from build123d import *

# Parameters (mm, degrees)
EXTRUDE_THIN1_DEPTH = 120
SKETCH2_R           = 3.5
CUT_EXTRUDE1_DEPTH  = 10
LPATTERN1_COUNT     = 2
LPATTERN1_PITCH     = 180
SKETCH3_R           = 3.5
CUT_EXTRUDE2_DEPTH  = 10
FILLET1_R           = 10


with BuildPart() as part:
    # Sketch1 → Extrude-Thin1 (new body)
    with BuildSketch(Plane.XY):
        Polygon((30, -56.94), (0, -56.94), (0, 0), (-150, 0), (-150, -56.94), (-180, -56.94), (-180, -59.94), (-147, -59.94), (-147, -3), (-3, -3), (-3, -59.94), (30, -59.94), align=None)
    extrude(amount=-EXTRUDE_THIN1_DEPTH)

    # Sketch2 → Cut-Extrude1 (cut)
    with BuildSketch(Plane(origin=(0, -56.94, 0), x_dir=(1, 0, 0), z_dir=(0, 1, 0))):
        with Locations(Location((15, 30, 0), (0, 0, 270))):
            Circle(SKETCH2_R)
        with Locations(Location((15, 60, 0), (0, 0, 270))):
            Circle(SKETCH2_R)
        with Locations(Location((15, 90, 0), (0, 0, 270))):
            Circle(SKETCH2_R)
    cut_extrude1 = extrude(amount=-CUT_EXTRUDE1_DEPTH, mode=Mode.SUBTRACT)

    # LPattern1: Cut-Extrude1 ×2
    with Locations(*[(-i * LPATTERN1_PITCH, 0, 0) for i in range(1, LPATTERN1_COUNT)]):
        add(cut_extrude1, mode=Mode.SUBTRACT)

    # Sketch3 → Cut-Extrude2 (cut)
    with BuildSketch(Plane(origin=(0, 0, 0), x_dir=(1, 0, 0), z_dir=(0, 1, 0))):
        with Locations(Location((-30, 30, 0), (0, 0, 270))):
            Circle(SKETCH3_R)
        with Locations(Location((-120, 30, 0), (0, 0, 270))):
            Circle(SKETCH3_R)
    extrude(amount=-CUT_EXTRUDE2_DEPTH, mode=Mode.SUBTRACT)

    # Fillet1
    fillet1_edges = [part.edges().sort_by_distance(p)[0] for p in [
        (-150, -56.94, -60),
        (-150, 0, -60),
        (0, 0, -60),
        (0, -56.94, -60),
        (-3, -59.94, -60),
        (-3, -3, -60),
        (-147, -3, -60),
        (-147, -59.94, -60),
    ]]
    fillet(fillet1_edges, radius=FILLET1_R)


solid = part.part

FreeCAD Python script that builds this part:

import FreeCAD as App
import Part
import Sketcher


def edges_at(feature, points):
    """Names of the edges that pass closest to the given points."""
    edges = feature.Shape.Edges
    near = lambda p: min(range(len(edges)), key=lambda i: edges[i].distToShape(Part.Vertex(*p))[0])
    return sorted({f"Edge{near(p) + 1}" for p in points})

doc = App.newDocument("Part")
body = doc.addObject("PartDesign::Body", "Body")

sketch1 = body.newObject("Sketcher::SketchObject", "Sketch")
sketch1.AttachmentSupport = (doc.getObject("XY_Plane"), [""])
sketch1.MapMode = "FlatFace"
sketch1.addGeometry(Part.LineSegment(App.Vector(30, -56.9, 0), App.Vector(0, -56.9, 0)), False)
sketch1.addGeometry(Part.LineSegment(App.Vector(0, -56.9, 0), App.Vector(0, 0, 0)), False)
sketch1.addGeometry(Part.LineSegment(App.Vector(0, 0, 0), App.Vector(-150, 0, 0)), False)
sketch1.addGeometry(Part.LineSegment(App.Vector(-150, 0, 0), App.Vector(-150, -56.9, 0)), False)
sketch1.addGeometry(Part.LineSegment(App.Vector(-150, -56.9, 0), App.Vector(-180, -56.9, 0)), False)
sketch1.addGeometry(Part.LineSegment(App.Vector(-180, -56.9, 0), App.Vector(-180, -59.9, 0)), False)
sketch1.addGeometry(Part.LineSegment(App.Vector(-180, -59.9, 0), App.Vector(-147, -59.9, 0)), False)
sketch1.addGeometry(Part.LineSegment(App.Vector(-147, -59.9, 0), App.Vector(-147, -3, 0)), False)
sketch1.addGeometry(Part.LineSegment(App.Vector(-147, -3, 0), App.Vector(-3, -3, 0)), False)
sketch1.addGeometry(Part.LineSegment(App.Vector(-3, -3, 0), App.Vector(-3, -59.9, 0)), False)
sketch1.addGeometry(Part.LineSegment(App.Vector(-3, -59.9, 0), App.Vector(30, -59.9, 0)), False)
sketch1.addGeometry(Part.LineSegment(App.Vector(30, -59.9, 0), App.Vector(30, -56.9, 0)), False)
sketch1.addConstraint(Sketcher.Constraint("Coincident", 0, 2, 1, 1))
sketch1.addConstraint(Sketcher.Constraint("Coincident", 1, 2, 2, 1))
sketch1.addConstraint(Sketcher.Constraint("Coincident", 2, 2, 3, 1))
sketch1.addConstraint(Sketcher.Constraint("Coincident", 3, 2, 4, 1))
sketch1.addConstraint(Sketcher.Constraint("Coincident", 4, 2, 5, 1))
sketch1.addConstraint(Sketcher.Constraint("Coincident", 5, 2, 6, 1))
sketch1.addConstraint(Sketcher.Constraint("Coincident", 6, 2, 7, 1))
sketch1.addConstraint(Sketcher.Constraint("Coincident", 7, 2, 8, 1))
sketch1.addConstraint(Sketcher.Constraint("Coincident", 8, 2, 9, 1))
sketch1.addConstraint(Sketcher.Constraint("Coincident", 9, 2, 10, 1))
sketch1.addConstraint(Sketcher.Constraint("Coincident", 10, 2, 11, 1))
sketch1.addConstraint(Sketcher.Constraint("Coincident", 11, 2, 0, 1))
sketch1.addConstraint(Sketcher.Constraint("Horizontal", 0))
sketch1.addConstraint(Sketcher.Constraint("Vertical", 1))
sketch1.addConstraint(Sketcher.Constraint("Horizontal", 2))
sketch1.addConstraint(Sketcher.Constraint("Vertical", 3))
sketch1.addConstraint(Sketcher.Constraint("Horizontal", 4))
sketch1.addConstraint(Sketcher.Constraint("Vertical", 5))
sketch1.addConstraint(Sketcher.Constraint("Horizontal", 6))
sketch1.addConstraint(Sketcher.Constraint("Vertical", 7))
sketch1.addConstraint(Sketcher.Constraint("Horizontal", 8))
sketch1.addConstraint(Sketcher.Constraint("Vertical", 9))
sketch1.addConstraint(Sketcher.Constraint("Horizontal", 10))
sketch1.addConstraint(Sketcher.Constraint("Vertical", 11))
sketch1.addConstraint(Sketcher.Constraint("Coincident", 1, 2, -1, 1))
sketch1.addConstraint(Sketcher.Constraint("Horizontal", 0, 2, 3, 2))
sketch1.addConstraint(Sketcher.Constraint("Horizontal", 6, 2, 9, 2))
sketch1.addConstraint(Sketcher.Constraint("Equal", 0, 4))
sketch1.addConstraint(Sketcher.Constraint("Equal", 6, 10))
sketch1.addConstraint(Sketcher.Constraint("Equal", 3, 7))
sketch1.addConstraint(Sketcher.Constraint("DistanceX", 0, 2, 0, 1, 30.0))
sketch1.addConstraint(Sketcher.Constraint("DistanceX", 2, 2, 2, 1, 150.0))
sketch1.addConstraint(Sketcher.Constraint("DistanceX", 6, 1, 6, 2, 33.0))
sketch1.addConstraint(Sketcher.Constraint("DistanceY", 5, 2, 5, 1, 3.0))
sketch1.addConstraint(Sketcher.Constraint("DistanceY", 1, 1, 1, 2, 56.94))
pad1 = body.newObject("PartDesign::Pad", "Pad")
pad1.Profile = sketch1
pad1.Length = 120
pad1.Reversed = True

sketch2 = body.newObject("Sketcher::SketchObject", "Sketch001")
sketch2.AttachmentSupport = (doc.getObject("XZ_Plane"), [""])
sketch2.MapMode = "FlatFace"
sketch2.AttachmentOffset = App.Placement(App.Vector(0, 0, 56.94), App.Rotation())
sketch2.addGeometry(Part.Circle(App.Vector(15, -30, 0), App.Vector(0, 0, 1), 3.5), False)
sketch2.addGeometry(Part.Circle(App.Vector(15, -60, 0), App.Vector(0, 0, 1), 3.5), False)
sketch2.addGeometry(Part.Circle(App.Vector(15, -90, 0), App.Vector(0, 0, 1), 3.5), False)
sketch2.addConstraint(Sketcher.Constraint("Equal", 0, 1))
sketch2.addConstraint(Sketcher.Constraint("Equal", 1, 2))
sketch2.addConstraint(Sketcher.Constraint("Vertical", 0, 3, 1, 3))
sketch2.addConstraint(Sketcher.Constraint("Vertical", 1, 3, 2, 3))
sketch2.addConstraint(Sketcher.Constraint("Diameter", 0, 7.0))
sketch2.addConstraint(Sketcher.Constraint("DistanceX", -1, 1, 0, 3, 15.0))
sketch2.addConstraint(Sketcher.Constraint("DistanceY", 0, 3, -1, 1, 30.0))
sketch2.addConstraint(Sketcher.Constraint("DistanceY", 1, 3, -1, 1, 60.0))
sketch2.addConstraint(Sketcher.Constraint("DistanceY", 2, 3, -1, 1, 90.0))
pocket1 = body.newObject("PartDesign::Pocket", "Pocket")
pocket1.Profile = sketch2
pocket1.Length = 10
pocket1.Reversed = True
doc.recompute()

linearpattern = body.newObject("PartDesign::LinearPattern", "LinearPattern")
linearpattern.Originals = [pocket1]
linearpattern.Direction = (doc.getObject("X_Axis"), [""])
linearpattern.Mode = "offset"
linearpattern.Offset = 180
linearpattern.Occurrences = 2
linearpattern.Reversed = True
body.Tip = linearpattern

sketch3 = body.newObject("Sketcher::SketchObject", "Sketch002")
sketch3.AttachmentSupport = (doc.getObject("XZ_Plane"), [""])
sketch3.MapMode = "FlatFace"
sketch3.addGeometry(Part.Circle(App.Vector(-30, -30, 0), App.Vector(0, 0, 1), 3.5), False)
sketch3.addGeometry(Part.Circle(App.Vector(-120, -30, 0), App.Vector(0, 0, 1), 3.5), False)
sketch3.addConstraint(Sketcher.Constraint("Equal", 0, 1))
sketch3.addConstraint(Sketcher.Constraint("Horizontal", 0, 3, 1, 3))
sketch3.addConstraint(Sketcher.Constraint("Diameter", 0, 7.0))
sketch3.addConstraint(Sketcher.Constraint("DistanceX", 0, 3, -1, 1, 30.0))
sketch3.addConstraint(Sketcher.Constraint("DistanceY", 0, 3, -1, 1, 30.0))
sketch3.addConstraint(Sketcher.Constraint("DistanceX", 1, 3, -1, 1, 120.0))
pocket2 = body.newObject("PartDesign::Pocket", "Pocket001")
pocket2.Profile = sketch3
pocket2.Length = 10
pocket2.Reversed = True
doc.recompute()

fillet = body.newObject("PartDesign::Fillet", "Fillet")
fillet.Base = (pocket2, edges_at(pocket2, [
    (-150, -56.94, -60),
    (-150, 0, -60),
    (0, 0, -60),
    (0, -56.94, -60),
    (-3, -59.94, -60),
    (-3, -3, -60),
    (-147, -3, -60),
    (-147, -59.94, -60),
]))
fillet.Radius = 10

doc.recompute()
